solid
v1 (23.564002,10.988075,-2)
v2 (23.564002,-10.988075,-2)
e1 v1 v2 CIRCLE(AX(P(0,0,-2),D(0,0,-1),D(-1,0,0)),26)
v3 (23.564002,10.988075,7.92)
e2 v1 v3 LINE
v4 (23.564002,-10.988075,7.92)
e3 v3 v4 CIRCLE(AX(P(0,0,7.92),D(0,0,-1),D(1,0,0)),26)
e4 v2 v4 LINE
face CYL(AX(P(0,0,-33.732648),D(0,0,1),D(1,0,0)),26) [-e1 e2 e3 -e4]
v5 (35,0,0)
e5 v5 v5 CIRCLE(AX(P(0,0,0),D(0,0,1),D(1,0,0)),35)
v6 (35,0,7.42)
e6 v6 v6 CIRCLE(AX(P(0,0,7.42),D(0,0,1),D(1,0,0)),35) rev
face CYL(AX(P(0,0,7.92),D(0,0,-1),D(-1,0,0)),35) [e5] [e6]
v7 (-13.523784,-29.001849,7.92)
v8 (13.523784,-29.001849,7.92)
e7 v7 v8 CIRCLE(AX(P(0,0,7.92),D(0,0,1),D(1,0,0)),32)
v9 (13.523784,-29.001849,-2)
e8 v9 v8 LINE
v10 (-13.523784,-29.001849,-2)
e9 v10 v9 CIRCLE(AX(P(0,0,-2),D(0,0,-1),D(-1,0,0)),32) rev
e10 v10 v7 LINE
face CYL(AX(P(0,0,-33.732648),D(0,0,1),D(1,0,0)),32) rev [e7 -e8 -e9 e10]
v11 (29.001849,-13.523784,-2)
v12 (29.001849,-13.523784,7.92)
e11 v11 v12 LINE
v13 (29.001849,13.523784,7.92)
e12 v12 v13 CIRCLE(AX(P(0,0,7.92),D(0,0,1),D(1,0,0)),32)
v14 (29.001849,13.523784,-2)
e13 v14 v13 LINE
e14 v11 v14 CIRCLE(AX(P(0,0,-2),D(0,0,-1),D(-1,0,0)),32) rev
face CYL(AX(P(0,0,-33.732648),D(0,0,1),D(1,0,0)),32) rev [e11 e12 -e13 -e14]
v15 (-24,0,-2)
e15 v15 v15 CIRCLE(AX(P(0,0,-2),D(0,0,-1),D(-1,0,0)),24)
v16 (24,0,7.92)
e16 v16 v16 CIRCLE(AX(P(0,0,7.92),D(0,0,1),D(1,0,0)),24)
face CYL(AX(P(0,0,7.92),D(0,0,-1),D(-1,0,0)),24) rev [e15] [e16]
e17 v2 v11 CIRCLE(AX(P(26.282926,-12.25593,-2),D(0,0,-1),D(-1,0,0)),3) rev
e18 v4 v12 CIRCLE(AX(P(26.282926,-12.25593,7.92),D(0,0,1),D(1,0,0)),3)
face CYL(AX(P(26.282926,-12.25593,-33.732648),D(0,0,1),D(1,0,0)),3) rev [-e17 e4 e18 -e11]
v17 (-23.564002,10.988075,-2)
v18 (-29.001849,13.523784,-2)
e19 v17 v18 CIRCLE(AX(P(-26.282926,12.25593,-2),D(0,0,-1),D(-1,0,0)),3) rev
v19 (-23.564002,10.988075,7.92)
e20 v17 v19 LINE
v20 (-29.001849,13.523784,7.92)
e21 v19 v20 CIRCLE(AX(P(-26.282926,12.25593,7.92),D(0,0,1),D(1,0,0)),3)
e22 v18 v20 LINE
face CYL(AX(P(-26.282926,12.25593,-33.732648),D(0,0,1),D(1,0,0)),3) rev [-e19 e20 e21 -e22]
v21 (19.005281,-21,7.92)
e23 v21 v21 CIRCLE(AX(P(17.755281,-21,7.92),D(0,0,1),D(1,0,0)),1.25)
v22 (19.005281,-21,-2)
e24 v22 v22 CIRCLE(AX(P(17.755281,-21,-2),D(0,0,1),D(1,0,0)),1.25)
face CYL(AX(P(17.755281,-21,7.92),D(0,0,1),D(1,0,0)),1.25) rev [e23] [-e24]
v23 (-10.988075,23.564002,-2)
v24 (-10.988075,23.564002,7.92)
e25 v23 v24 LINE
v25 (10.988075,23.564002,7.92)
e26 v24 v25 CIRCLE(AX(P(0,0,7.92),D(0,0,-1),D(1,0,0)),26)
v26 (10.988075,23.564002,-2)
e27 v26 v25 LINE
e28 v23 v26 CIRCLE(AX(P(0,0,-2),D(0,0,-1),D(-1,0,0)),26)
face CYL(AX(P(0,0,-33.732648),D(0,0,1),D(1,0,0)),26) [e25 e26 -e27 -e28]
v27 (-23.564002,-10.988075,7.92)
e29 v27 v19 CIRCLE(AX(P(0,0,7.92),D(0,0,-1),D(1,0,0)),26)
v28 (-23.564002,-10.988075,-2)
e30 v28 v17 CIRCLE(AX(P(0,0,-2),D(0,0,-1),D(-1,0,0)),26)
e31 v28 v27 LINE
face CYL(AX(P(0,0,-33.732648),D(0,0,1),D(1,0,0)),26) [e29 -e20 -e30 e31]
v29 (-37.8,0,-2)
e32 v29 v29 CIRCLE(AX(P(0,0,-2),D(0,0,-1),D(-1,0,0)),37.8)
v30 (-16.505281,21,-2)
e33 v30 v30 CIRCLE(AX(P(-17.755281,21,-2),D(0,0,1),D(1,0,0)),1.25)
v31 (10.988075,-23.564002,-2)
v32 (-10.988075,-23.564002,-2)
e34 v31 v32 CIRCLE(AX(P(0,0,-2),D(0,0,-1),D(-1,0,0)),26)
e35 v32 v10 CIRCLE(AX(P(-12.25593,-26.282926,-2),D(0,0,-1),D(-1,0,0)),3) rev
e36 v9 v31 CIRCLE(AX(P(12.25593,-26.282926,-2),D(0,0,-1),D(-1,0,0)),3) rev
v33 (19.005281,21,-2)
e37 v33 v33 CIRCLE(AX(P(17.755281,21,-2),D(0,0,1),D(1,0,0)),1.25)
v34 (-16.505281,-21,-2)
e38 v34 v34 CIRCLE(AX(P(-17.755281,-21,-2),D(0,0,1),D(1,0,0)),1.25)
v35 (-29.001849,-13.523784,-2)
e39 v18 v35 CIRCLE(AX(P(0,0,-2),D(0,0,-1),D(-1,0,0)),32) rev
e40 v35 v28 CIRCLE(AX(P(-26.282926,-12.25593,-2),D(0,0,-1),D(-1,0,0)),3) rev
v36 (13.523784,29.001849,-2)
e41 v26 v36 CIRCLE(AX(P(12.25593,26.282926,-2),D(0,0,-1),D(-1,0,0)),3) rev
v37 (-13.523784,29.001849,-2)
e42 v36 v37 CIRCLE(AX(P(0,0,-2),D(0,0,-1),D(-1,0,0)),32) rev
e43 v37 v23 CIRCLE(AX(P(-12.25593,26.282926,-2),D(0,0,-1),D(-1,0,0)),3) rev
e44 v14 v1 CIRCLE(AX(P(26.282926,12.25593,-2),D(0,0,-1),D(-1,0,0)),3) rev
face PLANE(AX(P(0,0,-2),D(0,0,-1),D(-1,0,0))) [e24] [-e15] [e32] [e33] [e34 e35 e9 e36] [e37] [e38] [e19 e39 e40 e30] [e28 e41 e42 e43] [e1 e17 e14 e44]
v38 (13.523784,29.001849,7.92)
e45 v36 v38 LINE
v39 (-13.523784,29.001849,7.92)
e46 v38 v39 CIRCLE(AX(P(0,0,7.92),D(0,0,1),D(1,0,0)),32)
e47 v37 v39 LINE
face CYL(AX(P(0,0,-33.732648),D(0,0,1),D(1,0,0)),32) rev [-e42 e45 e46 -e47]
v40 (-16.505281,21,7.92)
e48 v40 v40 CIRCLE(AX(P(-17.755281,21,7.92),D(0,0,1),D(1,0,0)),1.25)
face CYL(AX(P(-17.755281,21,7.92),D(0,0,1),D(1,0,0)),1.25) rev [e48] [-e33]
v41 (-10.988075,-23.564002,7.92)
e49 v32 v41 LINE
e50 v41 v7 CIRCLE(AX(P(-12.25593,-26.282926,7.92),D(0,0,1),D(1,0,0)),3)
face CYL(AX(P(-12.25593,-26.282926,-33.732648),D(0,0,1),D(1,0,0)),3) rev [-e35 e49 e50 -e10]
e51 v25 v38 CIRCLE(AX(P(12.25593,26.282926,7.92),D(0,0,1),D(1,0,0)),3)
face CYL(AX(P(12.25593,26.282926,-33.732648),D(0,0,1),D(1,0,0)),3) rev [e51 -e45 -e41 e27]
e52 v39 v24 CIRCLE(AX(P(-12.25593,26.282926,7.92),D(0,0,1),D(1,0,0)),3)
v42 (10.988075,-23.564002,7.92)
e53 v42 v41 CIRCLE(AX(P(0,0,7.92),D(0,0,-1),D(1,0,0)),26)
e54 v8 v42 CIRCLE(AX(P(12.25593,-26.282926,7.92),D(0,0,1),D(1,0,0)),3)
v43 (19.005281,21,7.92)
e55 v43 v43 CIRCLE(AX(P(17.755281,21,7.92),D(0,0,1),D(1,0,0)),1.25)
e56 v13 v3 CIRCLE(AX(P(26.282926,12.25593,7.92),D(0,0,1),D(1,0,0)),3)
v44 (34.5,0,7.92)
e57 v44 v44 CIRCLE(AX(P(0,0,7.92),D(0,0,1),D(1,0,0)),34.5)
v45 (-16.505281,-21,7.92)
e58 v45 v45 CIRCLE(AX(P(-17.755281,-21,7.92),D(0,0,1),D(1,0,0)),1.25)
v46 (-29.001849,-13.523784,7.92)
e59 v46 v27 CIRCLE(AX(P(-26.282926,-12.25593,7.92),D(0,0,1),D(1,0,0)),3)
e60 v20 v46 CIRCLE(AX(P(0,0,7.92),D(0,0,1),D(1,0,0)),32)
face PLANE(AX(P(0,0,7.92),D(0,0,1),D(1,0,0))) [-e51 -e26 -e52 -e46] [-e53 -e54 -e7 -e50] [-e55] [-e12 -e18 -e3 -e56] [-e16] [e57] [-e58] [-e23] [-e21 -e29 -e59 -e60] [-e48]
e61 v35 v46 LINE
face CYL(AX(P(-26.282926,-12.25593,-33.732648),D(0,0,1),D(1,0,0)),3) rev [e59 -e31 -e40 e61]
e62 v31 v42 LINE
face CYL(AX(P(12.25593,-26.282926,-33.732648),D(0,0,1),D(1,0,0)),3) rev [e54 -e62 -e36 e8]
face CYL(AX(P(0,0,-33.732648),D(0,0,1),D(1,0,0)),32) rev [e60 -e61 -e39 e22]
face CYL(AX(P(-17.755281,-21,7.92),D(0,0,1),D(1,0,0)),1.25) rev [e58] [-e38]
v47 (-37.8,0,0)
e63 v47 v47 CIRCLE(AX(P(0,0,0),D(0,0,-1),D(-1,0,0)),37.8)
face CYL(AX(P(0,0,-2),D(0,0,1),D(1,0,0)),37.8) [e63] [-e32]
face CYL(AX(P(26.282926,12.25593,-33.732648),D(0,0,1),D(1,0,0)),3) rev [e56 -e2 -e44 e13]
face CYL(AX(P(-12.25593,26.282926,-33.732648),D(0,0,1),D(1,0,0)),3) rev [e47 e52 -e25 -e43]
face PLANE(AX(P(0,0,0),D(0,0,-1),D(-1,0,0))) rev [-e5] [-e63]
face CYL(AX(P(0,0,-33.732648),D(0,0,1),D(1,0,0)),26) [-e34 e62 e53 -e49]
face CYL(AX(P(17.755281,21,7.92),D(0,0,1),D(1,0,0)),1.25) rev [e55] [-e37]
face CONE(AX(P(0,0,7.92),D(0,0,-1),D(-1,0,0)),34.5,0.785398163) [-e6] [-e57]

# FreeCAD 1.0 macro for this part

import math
import FreeCAD as App
import Part
import Sketcher
from FreeCAD import Vector
Q = App.Units.Quantity


def edges_at(feature, points):
    """Names of the edges that pass closest to the given points."""
    edges = feature.Shape.Edges
    near = lambda p: min(range(len(edges)), key=lambda i: edges[i].distToShape(Part.Vertex(*p))[0])
    return sorted({f"Edge{near(p) + 1}" for p in points})

doc = App.newDocument("Part")
body = doc.addObject("PartDesign::Body", "Body")

# Sketch on XY plane
sketch1 = doc.addObject("Sketcher::SketchObject", "Sketch")
body.addObject(sketch1)
sketch1.AttachmentSupport = (doc.XY_Plane, [""])
sketch1.MapMode = "FlatFace"
sketch1.addGeometry(Part.Circle(Vector(0, 0, 0), Vector(0, 0, 1), 35), False)
sketch1.addGeometry(Part.Circle(Vector(0, 0, 0), Vector(0, 0, 1), 24), False)
sketch1.addConstraint(Sketcher.Constraint("Coincident", 0, 3, -1, 1))
sketch1.addConstraint(Sketcher.Constraint("Coincident", 1, 3, -1, 1))
sketch1.addConstraint(Sketcher.Constraint("Diameter", 0, Q("70 mm")))
sketch1.addConstraint(Sketcher.Constraint("Diameter", 1, Q("48 mm")))
pad1 = doc.addObject("PartDesign::Pad", "Pad")
body.addObject(pad1)
pad1.Profile = sketch1
pad1.Length = 7.92

# Sketch on XY plane
sketch2 = doc.addObject("Sketcher::SketchObject", "Sketch001")
body.addObject(sketch2)
sketch2.AttachmentSupport = (doc.XY_Plane, [""])
sketch2.MapMode = "FlatFace"
sketch2.AttachmentOffset = App.Placement(Vector(0, 0, -2), App.Rotation())
sketch2.addGeometry(Part.Circle(Vector(0, 0, 0), Vector(0, 0, 1), 38), False)
sketch2.addGeometry(Part.Circle(Vector(0, 0, 0), Vector(0, 0, 1), 24), False)
sketch2.addConstraint(Sketcher.Constraint("Coincident", 0, 3, -1, 1))
sketch2.addConstraint(Sketcher.Constraint("Coincident", 1, 3, -1, 1))
sketch2.addConstraint(Sketcher.Constraint("Diameter", 1, Q("48 mm")))
sketch2.addConstraint(Sketcher.Constraint("Diameter", 0, Q("75.6 mm")))
pad2 = doc.addObject("PartDesign::Pad", "Pad001")
body.addObject(pad2)
pad2.Profile = sketch2
pad2.Length = 2

# Sketch on XY plane
sketch3 = doc.addObject("Sketcher::SketchObject", "Sketch002")
body.addObject(sketch3)
sketch3.AttachmentSupport = (doc.XY_Plane, [""])
sketch3.MapMode = "FlatFace"
sketch3.AttachmentOffset = App.Placement(Vector(0, 0, 7.92), App.Rotation())
sketch3.addGeometry(Part.Circle(Vector(-17.8, 21, 0), Vector(0, 0, 1), 1.2), False)
sketch3.addGeometry(Part.Circle(Vector(-17.8, -21, 0), Vector(0, 0, 1), 1.2), False)
sketch3.addGeometry(Part.Circle(Vector(17.8, -21, 0), Vector(0, 0, 1), 1.2), False)
sketch3.addGeometry(Part.Circle(Vector(17.8, 21, 0), Vector(0, 0, 1), 1.2), False)
sketch3.addConstraint(Sketcher.Constraint("Equal", 0, 1))
sketch3.addConstraint(Sketcher.Constraint("Equal", 1, 2))
sketch3.addConstraint(Sketcher.Constraint("Equal", 2, 3))
sketch3.addConstraint(Sketcher.Constraint("Symmetric", 0, 3, 2, 3, -1, 1))
sketch3.addConstraint(Sketcher.Constraint("Symmetric", 1, 3, 3, 3, -1, 1))
sketch3.addConstraint(Sketcher.Constraint("Symmetric", 1, 3, 2, 3, -2))
sketch3.addConstraint(Sketcher.Constraint("Diameter", 0, Q("2.5 mm")))
sketch3.addConstraint(Sketcher.Constraint("DistanceY", -1, 1, 0, 3, Q("21 mm")))
sketch3.addConstraint(Sketcher.Constraint("DistanceX", 0, 3, -1, 1, Q("17.755281 mm")))
doc.recompute()
hole = doc.addObject("PartDesign::Hole", "Hole")
body.addObject(hole)
hole.Profile = sketch3
hole.ThreadType = "None"
hole.Diameter = 2.5
hole.DepthType = "ThroughAll"
doc.recompute()

chamfer = doc.addObject("PartDesign::Chamfer", "Chamfer")
body.addObject(chamfer)
chamfer.Base = (hole, edges_at(hole, [(-35, 0, 7.92)]))
chamfer.Size = 0.5

# Sketch on XY plane
sketch4 = doc.addObject("Sketcher::SketchObject", "Sketch003")
body.addObject(sketch4)
sketch4.AttachmentSupport = (doc.XY_Plane, [""])
sketch4.MapMode = "FlatFace"
sketch4.AttachmentOffset = App.Placement(Vector(0, 0, 7.92), App.Rotation())
sketch4.addGeometry(Part.ArcOfCircle(Part.Circle(Vector(0, 0, 0), Vector(0, 0, 1), 32), math.radians(-25), math.radians(25)), False)
sketch4.addGeometry(Part.ArcOfCircle(Part.Circle(Vector(26.3, 12.3, 0), Vector(0, 0, 1), 3), math.radians(25), math.radians(205)), False)
sketch4.addGeometry(Part.ArcOfCircle(Part.Circle(Vector(0, 0, 0), Vector(0, 0, 1), 26), math.radians(-25), math.radians(25)), False)
sketch4.addGeometry(Part.ArcOfCircle(Part.Circle(Vector(26.3, -12.3, 0), Vector(0, 0, 1), 3), math.radians(155), math.radians(335)), False)
sketch4.addGeometry(Part.ArcOfCircle(Part.Circle(Vector(0, 0, 0), Vector(0, 0, 1), 32), math.radians(-115), math.radians(-65)), False)
sketch4.addGeometry(Part.ArcOfCircle(Part.Circle(Vector(12.3, -26.3, 0), Vector(0, 0, 1), 3), math.radians(-65), math.radians(115)), False)
sketch4.addGeometry(Part.ArcOfCircle(Part.Circle(Vector(0, 0, 0), Vector(0, 0, 1), 26), math.radians(-115), math.radians(-65)), False)
sketch4.addGeometry(Part.ArcOfCircle(Part.Circle(Vector(-12.3, -26.3, 0), Vector(0, 0, 1), 3), math.radians(65), math.radians(245)), False)
sketch4.addGeometry(Part.ArcOfCircle(Part.Circle(Vector(0, 0, 0), Vector(0, 0, 1), 32), math.radians(155), math.radians(205)), False)
sketch4.addGeometry(Part.ArcOfCircle(Part.Circle(Vector(-26.3, -12.3, 0), Vector(0, 0, 1), 3), math.radians(-155), math.radians(25)), False)
sketch4.addGeometry(Part.ArcOfCircle(Part.Circle(Vector(0, 0, 0), Vector(0, 0, 1), 26), math.radians(155), math.radians(205)), False)
sketch4.addGeometry(Part.ArcOfCircle(Part.Circle(Vector(-26.3, 12.3, 0), Vector(0, 0, 1), 3), math.radians(-25), math.radians(155)), False)
sketch4.addGeometry(Part.ArcOfCircle(Part.Circle(Vector(0, 0, 0), Vector(0, 0, 1), 32), math.radians(65), math.radians(115)), False)
sketch4.addGeometry(Part.ArcOfCircle(Part.Circle(Vector(-12.3, 26.3, 0), Vector(0, 0, 1), 3), math.radians(115), math.radians(295)), False)
sketch4.addGeometry(Part.ArcOfCircle(Part.Circle(Vector(0, 0, 0), Vector(0, 0, 1), 26), math.radians(65), math.radians(115)), False)
sketch4.addGeometry(Part.ArcOfCircle(Part.Circle(Vector(12.3, 26.3, 0), Vector(0, 0, 1), 3), math.radians(-115), math.radians(65)), False)
sketch4.addConstraint(Sketcher.Constraint("Tangent", 0, 2, 1, 1))
sketch4.addConstraint(Sketcher.Constraint("Tangent", 1, 2, 2, 2))
sketch4.addConstraint(Sketcher.Constraint("Tangent", 2, 1, 3, 1))
sketch4.addConstraint(Sketcher.Constraint("Tangent", 3, 2, 0, 1))
sketch4.addConstraint(Sketcher.Constraint("Tangent", 4, 2, 5, 1))
sketch4.addConstraint(Sketcher.Constraint("Tangent", 5, 2, 6, 2))
sketch4.addConstraint(Sketcher.Constraint("Tangent", 6, 1, 7, 1))
sketch4.addConstraint(Sketcher.Constraint("Tangent", 7, 2, 4, 1))
sketch4.addConstraint(Sketcher.Constraint("Tangent", 8, 2, 9, 1))
sketch4.addConstraint(Sketcher.Constraint("Tangent", 9, 2, 10, 2))
sketch4.addConstraint(Sketcher.Constraint("Tangent", 10, 1, 11, 1))
sketch4.addConstraint(Sketcher.Constraint("Tangent", 11, 2, 8, 1))
sketch4.addConstraint(Sketcher.Constraint("Tangent", 12, 2, 13, 1))
sketch4.addConstraint(Sketcher.Constraint("Tangent", 13, 2, 14, 2))
sketch4.addConstraint(Sketcher.Constraint("Tangent", 14, 1, 15, 1))
sketch4.addConstraint(Sketcher.Constraint("Tangent", 15, 2, 12, 1))
sketch4.addConstraint(Sketcher.Constraint("Coincident", 0, 3, -1, 1))
sketch4.addConstraint(Sketcher.Constraint("Coincident", 2, 3, -1, 1))
sketch4.addConstraint(Sketcher.Constraint("Coincident", 4, 3, -1, 1))
sketch4.addConstraint(Sketcher.Constraint("Coincident", 6, 3, -1, 1))
sketch4.addConstraint(Sketcher.Constraint("Coincident", 8, 3, -1, 1))
sketch4.addConstraint(Sketcher.Constraint("Coincident", 10, 3, -1, 1))
sketch4.addConstraint(Sketcher.Constraint("Coincident", 12, 3, -1, 1))
sketch4.addConstraint(Sketcher.Constraint("Coincident", 14, 3, -1, 1))
sketch4.addConstraint(Sketcher.Constraint("Equal", 0, 4))
sketch4.addConstraint(Sketcher.Constraint("Equal", 3, 5))
sketch4.addConstraint(Sketcher.Constraint("Equal", 4, 8))
sketch4.addConstraint(Sketcher.Constraint("Equal", 7, 9))
sketch4.addConstraint(Sketcher.Constraint("Equal", 8, 12))
sketch4.addConstraint(Sketcher.Constraint("Equal", 11, 13))
sketch4.addConstraint(Sketcher.Constraint("Horizontal", 5, 3, 7, 3))
sketch4.addConstraint(Sketcher.Constraint("Horizontal", 3, 3, 9, 3))
sketch4.addConstraint(Sketcher.Constraint("Horizontal", 1, 3, 11, 3))
sketch4.addConstraint(Sketcher.Constraint("Horizontal", 13, 3, 15, 3))
sketch4.addConstraint(Sketcher.Constraint("Vertical", 1, 3, 3, 3))
sketch4.addConstraint(Sketcher.Constraint("Vertical", 7, 3, 13, 3))
sketch4.addConstraint(Sketcher.Constraint("Radius", 0, Q("32 mm")))
sketch4.addConstraint(Sketcher.Constraint("Radius", 1, Q("3 mm")))
sketch4.addConstraint(Sketcher.Constraint("DistanceY", -1, 1, 1, 3, Q("12.25593 mm")))
sketch4.addConstraint(Sketcher.Constraint("DistanceX", -1, 1, 5, 3, Q("12.25593 mm")))
pocket1 = doc.addObject("PartDesign::Pocket", "Pocket")
body.addObject(pocket1)
pocket1.Profile = sketch4
pocket1.Length = 9.92

doc.recompute()
